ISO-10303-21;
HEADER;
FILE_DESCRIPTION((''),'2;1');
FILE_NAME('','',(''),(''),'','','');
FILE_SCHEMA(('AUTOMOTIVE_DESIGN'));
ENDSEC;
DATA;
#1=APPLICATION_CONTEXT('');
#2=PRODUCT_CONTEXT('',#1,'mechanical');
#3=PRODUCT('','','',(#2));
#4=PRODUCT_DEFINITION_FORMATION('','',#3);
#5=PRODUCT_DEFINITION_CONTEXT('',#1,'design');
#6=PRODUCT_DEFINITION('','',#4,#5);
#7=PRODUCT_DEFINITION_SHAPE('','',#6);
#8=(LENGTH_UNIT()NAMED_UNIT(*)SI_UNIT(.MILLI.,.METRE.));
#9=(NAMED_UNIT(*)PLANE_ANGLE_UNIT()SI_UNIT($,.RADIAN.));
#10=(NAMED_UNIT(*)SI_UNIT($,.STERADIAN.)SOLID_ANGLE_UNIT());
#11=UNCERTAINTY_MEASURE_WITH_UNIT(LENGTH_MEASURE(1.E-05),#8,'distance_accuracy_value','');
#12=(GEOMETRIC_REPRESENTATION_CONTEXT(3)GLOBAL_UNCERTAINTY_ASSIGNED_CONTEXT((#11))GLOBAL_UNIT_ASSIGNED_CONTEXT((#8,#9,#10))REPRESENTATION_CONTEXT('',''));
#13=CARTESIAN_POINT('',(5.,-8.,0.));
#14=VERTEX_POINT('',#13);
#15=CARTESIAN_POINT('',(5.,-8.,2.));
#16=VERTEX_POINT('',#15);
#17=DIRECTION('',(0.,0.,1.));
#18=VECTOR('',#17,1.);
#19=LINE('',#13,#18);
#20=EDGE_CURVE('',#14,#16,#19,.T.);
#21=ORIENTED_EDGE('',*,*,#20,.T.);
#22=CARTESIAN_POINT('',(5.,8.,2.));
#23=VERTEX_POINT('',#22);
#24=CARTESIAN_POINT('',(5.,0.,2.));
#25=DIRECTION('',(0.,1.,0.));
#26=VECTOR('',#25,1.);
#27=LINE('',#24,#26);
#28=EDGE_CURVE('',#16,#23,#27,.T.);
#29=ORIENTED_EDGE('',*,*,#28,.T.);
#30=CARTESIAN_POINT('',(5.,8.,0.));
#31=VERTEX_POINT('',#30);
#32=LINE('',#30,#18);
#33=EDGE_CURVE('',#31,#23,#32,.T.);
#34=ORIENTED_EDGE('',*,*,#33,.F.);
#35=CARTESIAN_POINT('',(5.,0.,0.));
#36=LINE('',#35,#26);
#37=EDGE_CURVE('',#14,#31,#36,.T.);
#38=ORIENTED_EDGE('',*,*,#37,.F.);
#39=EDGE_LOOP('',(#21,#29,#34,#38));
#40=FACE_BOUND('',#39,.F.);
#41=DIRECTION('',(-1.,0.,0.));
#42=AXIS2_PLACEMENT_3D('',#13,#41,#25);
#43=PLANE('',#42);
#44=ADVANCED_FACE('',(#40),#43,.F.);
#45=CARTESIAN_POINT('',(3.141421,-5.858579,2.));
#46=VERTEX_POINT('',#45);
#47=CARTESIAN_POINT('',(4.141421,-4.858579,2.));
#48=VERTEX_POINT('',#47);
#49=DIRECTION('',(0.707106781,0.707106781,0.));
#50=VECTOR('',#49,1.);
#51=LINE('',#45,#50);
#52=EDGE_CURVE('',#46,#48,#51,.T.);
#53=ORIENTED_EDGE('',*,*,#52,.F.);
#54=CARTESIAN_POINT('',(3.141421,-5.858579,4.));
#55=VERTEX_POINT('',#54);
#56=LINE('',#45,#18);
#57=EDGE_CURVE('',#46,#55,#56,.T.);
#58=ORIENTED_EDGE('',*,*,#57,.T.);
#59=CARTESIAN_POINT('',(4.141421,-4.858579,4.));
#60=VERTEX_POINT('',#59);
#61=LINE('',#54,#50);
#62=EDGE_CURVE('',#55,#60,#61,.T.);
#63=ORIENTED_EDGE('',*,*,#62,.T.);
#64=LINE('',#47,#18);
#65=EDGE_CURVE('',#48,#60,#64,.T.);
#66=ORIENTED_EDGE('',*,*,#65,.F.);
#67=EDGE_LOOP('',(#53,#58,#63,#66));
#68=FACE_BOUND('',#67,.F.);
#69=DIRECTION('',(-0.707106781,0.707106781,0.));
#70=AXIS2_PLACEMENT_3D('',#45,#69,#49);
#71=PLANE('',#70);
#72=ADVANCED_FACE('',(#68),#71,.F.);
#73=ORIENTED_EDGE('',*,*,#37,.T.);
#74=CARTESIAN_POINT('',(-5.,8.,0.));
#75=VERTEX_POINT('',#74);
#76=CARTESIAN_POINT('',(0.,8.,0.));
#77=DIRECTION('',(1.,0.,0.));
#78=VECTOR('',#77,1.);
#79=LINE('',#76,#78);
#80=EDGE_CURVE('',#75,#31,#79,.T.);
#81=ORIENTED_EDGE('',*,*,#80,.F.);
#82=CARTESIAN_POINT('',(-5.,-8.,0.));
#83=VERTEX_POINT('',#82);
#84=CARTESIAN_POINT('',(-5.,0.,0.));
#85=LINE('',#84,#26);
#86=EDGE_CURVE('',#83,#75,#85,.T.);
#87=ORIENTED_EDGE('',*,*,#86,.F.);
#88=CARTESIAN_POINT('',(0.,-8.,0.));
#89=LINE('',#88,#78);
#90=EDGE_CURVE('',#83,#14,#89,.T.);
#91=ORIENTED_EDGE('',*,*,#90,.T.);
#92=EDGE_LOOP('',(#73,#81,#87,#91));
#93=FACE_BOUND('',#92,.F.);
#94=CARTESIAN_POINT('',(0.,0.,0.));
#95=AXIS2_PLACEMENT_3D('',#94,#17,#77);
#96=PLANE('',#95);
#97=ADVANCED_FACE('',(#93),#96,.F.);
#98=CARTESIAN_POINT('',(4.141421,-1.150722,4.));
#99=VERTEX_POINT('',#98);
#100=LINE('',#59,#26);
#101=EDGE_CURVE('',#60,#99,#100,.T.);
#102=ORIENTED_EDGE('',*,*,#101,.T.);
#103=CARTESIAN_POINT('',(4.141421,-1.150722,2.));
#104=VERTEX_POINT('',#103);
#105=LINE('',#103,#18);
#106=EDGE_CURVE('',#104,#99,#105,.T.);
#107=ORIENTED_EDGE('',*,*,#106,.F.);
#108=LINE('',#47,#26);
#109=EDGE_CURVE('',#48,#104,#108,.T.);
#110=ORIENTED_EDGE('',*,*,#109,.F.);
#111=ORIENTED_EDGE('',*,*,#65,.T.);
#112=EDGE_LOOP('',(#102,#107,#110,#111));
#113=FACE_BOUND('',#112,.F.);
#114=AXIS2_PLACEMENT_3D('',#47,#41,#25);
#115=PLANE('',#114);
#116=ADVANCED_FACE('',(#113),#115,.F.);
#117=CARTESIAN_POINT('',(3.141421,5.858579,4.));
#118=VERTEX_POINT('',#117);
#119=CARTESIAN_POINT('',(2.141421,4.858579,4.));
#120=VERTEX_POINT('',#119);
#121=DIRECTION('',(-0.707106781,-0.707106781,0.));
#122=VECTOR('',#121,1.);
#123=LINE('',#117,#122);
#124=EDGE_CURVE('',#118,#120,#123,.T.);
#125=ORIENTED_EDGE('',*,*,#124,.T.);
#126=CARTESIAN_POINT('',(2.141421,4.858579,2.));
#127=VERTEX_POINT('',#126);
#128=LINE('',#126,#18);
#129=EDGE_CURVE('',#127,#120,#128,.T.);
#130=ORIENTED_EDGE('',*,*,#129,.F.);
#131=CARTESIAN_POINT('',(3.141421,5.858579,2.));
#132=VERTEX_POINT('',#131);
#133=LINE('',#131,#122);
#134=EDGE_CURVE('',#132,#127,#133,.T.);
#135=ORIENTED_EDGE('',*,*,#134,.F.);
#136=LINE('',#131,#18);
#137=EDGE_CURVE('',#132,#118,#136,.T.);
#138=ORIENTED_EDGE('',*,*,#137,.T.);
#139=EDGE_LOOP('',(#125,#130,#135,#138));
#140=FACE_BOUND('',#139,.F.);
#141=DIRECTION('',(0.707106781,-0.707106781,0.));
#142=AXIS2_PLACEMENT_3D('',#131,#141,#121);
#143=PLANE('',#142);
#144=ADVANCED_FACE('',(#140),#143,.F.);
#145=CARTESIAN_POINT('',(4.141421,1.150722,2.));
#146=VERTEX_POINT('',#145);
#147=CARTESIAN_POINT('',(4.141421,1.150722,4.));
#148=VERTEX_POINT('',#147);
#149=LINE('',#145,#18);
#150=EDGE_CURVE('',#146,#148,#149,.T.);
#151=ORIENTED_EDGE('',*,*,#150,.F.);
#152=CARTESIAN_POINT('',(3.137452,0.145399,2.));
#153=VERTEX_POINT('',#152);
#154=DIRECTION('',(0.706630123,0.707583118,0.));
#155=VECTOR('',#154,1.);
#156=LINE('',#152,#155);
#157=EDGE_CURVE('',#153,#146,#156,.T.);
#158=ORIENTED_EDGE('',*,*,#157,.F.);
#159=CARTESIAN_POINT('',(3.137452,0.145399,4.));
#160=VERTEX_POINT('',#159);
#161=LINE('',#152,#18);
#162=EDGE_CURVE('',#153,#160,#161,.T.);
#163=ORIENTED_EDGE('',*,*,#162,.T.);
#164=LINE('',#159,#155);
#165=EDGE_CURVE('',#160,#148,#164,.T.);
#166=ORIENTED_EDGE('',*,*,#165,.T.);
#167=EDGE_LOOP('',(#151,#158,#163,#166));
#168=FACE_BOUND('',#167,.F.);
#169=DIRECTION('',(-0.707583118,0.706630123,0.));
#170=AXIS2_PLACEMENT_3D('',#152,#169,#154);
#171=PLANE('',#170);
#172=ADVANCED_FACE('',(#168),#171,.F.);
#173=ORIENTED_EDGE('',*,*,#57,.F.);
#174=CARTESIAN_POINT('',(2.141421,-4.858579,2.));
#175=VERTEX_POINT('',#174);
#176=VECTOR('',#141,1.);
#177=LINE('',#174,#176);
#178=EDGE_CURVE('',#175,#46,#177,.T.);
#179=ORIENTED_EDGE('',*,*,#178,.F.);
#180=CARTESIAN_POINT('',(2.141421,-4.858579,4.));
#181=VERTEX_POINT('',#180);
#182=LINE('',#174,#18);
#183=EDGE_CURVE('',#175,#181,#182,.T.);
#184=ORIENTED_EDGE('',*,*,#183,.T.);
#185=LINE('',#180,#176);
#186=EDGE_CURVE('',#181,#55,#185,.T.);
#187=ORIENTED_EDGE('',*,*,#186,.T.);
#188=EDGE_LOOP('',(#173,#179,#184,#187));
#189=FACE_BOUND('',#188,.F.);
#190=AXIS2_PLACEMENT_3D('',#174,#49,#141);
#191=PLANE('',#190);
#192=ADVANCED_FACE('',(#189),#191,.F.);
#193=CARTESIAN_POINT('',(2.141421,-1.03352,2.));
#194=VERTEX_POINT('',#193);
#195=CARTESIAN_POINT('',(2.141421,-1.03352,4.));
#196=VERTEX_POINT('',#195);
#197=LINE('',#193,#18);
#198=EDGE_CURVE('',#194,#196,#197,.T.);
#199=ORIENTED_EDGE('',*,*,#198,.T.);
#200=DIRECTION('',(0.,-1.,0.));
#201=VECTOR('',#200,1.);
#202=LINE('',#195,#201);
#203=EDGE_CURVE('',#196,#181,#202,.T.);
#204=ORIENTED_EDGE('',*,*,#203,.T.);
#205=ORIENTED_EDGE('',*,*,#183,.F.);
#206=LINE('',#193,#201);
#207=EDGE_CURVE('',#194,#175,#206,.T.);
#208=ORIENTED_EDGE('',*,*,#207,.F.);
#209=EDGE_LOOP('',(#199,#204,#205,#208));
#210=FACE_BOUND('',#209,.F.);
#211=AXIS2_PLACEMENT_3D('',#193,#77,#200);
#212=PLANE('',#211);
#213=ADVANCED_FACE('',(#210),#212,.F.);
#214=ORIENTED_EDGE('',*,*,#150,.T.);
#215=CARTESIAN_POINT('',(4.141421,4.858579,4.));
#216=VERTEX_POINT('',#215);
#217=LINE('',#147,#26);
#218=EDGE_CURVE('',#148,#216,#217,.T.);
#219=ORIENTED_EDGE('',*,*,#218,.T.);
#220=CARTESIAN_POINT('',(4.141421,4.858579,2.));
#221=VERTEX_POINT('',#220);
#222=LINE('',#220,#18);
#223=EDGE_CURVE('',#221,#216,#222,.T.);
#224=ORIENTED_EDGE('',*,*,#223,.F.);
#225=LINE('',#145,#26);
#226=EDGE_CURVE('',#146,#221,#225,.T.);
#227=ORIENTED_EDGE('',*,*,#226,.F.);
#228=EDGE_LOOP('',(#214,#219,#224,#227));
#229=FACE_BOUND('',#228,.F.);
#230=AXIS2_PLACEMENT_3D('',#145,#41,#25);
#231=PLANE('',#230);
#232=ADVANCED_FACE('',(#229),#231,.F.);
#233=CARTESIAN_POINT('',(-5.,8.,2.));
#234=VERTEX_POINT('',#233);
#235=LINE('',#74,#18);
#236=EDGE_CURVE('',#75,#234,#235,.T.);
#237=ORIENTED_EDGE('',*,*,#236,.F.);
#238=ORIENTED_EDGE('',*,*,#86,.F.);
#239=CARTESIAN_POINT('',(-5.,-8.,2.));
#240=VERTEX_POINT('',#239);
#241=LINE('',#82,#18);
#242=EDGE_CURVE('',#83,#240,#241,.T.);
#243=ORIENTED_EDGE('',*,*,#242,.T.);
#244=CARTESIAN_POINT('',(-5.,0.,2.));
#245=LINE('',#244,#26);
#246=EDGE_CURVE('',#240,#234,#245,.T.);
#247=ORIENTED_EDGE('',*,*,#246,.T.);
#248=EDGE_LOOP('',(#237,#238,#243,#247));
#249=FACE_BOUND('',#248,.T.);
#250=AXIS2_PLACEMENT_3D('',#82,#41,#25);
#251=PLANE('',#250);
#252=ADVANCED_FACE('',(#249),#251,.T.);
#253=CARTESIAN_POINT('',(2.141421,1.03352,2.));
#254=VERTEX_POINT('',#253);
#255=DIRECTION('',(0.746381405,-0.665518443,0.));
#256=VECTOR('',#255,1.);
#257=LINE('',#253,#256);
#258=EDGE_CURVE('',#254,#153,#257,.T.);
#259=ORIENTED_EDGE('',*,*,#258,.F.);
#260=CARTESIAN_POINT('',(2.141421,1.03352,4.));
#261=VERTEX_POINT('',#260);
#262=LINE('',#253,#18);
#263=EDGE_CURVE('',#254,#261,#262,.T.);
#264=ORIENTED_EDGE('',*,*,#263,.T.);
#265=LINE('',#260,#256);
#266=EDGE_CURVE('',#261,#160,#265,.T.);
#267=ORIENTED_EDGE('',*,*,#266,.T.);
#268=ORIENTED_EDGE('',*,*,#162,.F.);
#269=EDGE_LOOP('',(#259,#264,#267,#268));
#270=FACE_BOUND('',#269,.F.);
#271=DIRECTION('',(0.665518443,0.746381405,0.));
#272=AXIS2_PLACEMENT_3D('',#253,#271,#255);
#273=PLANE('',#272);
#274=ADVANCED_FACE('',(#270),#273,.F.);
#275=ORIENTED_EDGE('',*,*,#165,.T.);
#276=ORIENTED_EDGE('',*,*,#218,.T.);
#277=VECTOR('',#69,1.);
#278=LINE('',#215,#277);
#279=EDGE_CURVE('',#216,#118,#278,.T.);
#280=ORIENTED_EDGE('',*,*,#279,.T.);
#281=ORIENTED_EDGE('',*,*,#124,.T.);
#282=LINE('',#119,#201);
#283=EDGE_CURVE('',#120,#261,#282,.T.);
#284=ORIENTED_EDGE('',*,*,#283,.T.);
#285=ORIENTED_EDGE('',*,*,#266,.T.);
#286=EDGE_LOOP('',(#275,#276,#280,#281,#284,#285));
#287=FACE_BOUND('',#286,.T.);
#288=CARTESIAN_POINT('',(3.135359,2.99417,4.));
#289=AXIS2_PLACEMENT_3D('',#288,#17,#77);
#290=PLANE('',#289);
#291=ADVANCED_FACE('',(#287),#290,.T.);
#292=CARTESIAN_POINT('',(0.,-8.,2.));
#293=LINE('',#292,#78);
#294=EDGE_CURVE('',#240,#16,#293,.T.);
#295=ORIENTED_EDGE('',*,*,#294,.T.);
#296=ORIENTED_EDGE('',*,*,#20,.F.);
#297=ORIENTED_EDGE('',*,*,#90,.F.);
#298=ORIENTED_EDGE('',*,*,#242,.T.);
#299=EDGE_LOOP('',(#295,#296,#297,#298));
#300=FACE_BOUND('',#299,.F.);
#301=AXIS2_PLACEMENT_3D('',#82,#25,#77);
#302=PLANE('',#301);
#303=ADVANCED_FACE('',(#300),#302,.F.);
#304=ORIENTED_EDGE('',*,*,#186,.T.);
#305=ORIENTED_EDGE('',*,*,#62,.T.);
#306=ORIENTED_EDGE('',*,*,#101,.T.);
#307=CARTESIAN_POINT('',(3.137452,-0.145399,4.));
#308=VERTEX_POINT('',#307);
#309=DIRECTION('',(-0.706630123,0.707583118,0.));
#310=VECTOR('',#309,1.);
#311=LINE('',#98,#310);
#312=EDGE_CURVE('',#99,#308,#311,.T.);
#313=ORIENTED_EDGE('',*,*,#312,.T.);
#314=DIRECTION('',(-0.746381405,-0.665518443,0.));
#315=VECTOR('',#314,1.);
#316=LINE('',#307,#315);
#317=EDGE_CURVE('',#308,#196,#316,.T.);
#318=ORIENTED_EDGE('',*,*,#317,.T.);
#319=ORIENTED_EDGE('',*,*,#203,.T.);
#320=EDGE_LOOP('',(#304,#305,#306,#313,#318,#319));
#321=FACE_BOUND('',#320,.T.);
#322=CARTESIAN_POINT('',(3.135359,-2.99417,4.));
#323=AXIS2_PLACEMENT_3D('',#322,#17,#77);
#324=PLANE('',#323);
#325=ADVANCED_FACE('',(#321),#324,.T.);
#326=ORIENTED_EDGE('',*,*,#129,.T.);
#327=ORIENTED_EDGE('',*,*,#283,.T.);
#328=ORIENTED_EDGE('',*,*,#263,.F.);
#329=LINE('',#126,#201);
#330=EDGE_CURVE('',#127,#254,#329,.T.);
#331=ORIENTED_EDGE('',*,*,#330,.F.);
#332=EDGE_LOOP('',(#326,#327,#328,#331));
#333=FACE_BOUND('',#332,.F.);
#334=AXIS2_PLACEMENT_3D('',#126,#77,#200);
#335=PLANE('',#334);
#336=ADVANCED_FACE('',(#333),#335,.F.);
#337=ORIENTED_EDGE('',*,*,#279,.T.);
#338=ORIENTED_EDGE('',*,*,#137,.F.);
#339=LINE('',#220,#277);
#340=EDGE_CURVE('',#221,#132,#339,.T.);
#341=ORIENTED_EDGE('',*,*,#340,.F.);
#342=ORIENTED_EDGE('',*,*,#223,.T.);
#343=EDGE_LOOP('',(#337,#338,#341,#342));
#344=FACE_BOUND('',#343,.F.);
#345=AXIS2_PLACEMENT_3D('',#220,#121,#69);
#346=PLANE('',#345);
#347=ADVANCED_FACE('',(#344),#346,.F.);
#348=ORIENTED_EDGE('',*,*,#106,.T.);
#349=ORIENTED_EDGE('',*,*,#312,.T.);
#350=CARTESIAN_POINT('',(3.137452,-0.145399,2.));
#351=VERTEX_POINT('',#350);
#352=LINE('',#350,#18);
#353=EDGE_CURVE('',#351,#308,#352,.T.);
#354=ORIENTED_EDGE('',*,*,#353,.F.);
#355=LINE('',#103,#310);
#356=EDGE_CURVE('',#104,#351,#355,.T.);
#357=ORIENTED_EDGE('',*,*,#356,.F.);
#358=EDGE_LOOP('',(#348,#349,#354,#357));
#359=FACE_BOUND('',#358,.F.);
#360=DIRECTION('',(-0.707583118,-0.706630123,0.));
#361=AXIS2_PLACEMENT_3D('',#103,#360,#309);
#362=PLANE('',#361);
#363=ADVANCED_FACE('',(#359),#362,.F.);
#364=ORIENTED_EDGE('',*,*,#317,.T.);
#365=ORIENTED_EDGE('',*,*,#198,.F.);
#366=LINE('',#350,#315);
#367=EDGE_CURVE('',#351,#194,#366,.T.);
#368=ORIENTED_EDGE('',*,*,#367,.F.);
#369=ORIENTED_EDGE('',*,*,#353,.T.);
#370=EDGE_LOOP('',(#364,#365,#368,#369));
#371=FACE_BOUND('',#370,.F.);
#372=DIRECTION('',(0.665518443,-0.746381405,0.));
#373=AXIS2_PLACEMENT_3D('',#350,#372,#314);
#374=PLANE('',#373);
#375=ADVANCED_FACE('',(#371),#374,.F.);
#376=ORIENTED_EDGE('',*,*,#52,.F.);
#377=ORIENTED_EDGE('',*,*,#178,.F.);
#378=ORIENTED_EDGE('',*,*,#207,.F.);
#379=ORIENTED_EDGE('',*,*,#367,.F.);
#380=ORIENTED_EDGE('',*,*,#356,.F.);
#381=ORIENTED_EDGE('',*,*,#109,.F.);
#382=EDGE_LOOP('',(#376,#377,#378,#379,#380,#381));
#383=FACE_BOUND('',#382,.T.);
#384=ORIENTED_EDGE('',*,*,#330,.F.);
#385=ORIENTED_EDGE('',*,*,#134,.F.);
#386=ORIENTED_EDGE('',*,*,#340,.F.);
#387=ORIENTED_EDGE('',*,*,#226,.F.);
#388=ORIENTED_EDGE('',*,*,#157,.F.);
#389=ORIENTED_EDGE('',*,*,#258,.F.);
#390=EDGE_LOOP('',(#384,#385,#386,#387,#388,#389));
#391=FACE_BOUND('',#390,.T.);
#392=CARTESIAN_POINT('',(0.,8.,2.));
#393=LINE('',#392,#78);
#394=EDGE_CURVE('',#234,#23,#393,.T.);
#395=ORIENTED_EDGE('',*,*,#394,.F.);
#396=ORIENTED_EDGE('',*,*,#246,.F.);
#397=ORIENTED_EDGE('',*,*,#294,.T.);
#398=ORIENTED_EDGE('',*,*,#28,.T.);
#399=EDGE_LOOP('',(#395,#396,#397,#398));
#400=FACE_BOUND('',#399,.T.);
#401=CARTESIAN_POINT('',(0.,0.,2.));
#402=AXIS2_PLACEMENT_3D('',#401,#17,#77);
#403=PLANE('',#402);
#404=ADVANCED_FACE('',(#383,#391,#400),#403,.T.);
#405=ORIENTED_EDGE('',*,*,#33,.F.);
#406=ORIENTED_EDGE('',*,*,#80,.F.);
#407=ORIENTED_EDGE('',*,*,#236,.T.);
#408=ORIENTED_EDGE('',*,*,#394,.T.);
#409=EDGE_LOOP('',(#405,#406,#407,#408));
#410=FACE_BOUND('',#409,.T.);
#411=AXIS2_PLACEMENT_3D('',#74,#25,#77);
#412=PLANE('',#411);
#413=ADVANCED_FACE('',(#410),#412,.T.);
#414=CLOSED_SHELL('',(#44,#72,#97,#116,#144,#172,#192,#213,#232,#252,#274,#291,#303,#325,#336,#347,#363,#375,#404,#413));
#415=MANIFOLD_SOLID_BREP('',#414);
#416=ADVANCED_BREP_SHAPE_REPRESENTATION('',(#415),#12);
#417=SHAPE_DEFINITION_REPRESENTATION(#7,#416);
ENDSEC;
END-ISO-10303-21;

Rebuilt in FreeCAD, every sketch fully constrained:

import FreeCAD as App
import Part
import Sketcher
Q = App.Units.Quantity


def add_polygon(sketch, points):
    """Adds a closed chain of lines whose ends are joined by coincident constraints."""
    first, n = sketch.GeometryCount, len(points)
    for a, b in zip(points, points[1:] + points[:1]):
        sketch.addGeometry(Part.LineSegment(App.Vector(*a, 0), App.Vector(*b, 0)), False)
    for i in range(n):
        sketch.addConstraint(Sketcher.Constraint("Coincident", first + i, 2, first + (i + 1) % n, 1))

doc = App.newDocument("Part")
body = doc.addObject("PartDesign::Body", "Body")

# Sketch on XY plane
sketch1 = body.newObject("Sketcher::SketchObject", "Sketch")
sketch1.AttachmentSupport = (doc.getObject("XY_Plane"), [""])
sketch1.MapMode = "FlatFace"
add_polygon(sketch1, [(-5, 8), (-5, -8), (5, -8), (5, 8)])  # lines 0-3
sketch1.addConstraint(Sketcher.Constraint("Vertical", 0))
sketch1.addConstraint(Sketcher.Constraint("Horizontal", 1))
sketch1.addConstraint(Sketcher.Constraint("Vertical", 2))
sketch1.addConstraint(Sketcher.Constraint("Horizontal", 3))
sketch1.addConstraint(Sketcher.Constraint("Symmetric", 0, 2, 2, 2, -1, 1))
sketch1.addConstraint(Sketcher.Constraint("DistanceX", 1, 1, 1, 2, Q("10 mm")))
sketch1.addConstraint(Sketcher.Constraint("DistanceY", 0, 2, 0, 1, Q("16 mm")))
pad1 = body.newObject("PartDesign::Pad", "Pad")
pad1.Profile = sketch1
pad1.Length = 2

# Sketch on XY plane
sketch2 = body.newObject("Sketcher::SketchObject", "Sketch001")
sketch2.AttachmentSupport = (doc.getObject("XY_Plane"), [""])
sketch2.MapMode = "FlatFace"
sketch2.AttachmentOffset = App.Placement(App.Vector(0, 0, 2), App.Rotation())
add_polygon(sketch2, [(4.141421, 4.858579), (3.141421, 5.858579), (2.141421, 4.858579), (2.141421, 1.03352), (3.137452, 0.145399), (4.141421, 1.150722)])  # lines 0-5
add_polygon(sketch2, [(3.137452, -0.145399), (2.141421, -1.03352), (2.141421, -4.858579), (3.141421, -5.858579), (4.141421, -4.858579), (4.141421, -1.150722)])  # lines 6-11
sketch2.addConstraint(Sketcher.Constraint("Vertical", 2))
sketch2.addConstraint(Sketcher.Constraint("Vertical", 5))
sketch2.addConstraint(Sketcher.Constraint("Vertical", 7))
sketch2.addConstraint(Sketcher.Constraint("Vertical", 10))
sketch2.addConstraint(Sketcher.Constraint("Symmetric", 2, 2, 6, 2, -1))
sketch2.addConstraint(Sketcher.Constraint("Symmetric", 0, 2, 8, 2, -1))
sketch2.addConstraint(Sketcher.Constraint("Symmetric", 5, 2, 9, 2, -1))
sketch2.addConstraint(Sketcher.Constraint("Symmetric", 3, 2, 11, 2, -1))
sketch2.addConstraint(Sketcher.Constraint("Perpendicular", 0, 1))
sketch2.addConstraint(Sketcher.Constraint("Perpendicular", 1, 8))
sketch2.addConstraint(Sketcher.Constraint("Perpendicular", 8, 9))
sketch2.addConstraint(Sketcher.Constraint("Horizontal", 1, 2, 5, 2))
sketch2.addConstraint(Sketcher.Constraint("Equal", 5, 10))
sketch2.addConstraint(Sketcher.Constraint("DistanceX", 1, 2, 0, 2, Q("1 mm")))
sketch2.addConstraint(Sketcher.Constraint("DistanceY", 2, 2, 2, 1, Q("3.825059 mm")))
sketch2.addConstraint(Sketcher.Constraint("DistanceY", -1, 1, 3, 2, Q("0.145399 mm")))
sketch2.addConstraint(Sketcher.Constraint("DistanceY", 6, 2, 1, 2, Q("5.892099 mm")))
sketch2.addConstraint(Sketcher.Constraint("DistanceY", 7, 2, 4, 2, Q("6.009301 mm")))
sketch2.addConstraint(Sketcher.Constraint("Distance", 3, Q("1.33448 mm")))
sketch2.addConstraint(Sketcher.Constraint("DistanceX", -1, 1, 0, 2, Q("3.141421 mm")))
pad2 = body.newObject("PartDesign::Pad", "Pad001")
pad2.Profile = sketch2
pad2.Length = 2

doc.recompute()
